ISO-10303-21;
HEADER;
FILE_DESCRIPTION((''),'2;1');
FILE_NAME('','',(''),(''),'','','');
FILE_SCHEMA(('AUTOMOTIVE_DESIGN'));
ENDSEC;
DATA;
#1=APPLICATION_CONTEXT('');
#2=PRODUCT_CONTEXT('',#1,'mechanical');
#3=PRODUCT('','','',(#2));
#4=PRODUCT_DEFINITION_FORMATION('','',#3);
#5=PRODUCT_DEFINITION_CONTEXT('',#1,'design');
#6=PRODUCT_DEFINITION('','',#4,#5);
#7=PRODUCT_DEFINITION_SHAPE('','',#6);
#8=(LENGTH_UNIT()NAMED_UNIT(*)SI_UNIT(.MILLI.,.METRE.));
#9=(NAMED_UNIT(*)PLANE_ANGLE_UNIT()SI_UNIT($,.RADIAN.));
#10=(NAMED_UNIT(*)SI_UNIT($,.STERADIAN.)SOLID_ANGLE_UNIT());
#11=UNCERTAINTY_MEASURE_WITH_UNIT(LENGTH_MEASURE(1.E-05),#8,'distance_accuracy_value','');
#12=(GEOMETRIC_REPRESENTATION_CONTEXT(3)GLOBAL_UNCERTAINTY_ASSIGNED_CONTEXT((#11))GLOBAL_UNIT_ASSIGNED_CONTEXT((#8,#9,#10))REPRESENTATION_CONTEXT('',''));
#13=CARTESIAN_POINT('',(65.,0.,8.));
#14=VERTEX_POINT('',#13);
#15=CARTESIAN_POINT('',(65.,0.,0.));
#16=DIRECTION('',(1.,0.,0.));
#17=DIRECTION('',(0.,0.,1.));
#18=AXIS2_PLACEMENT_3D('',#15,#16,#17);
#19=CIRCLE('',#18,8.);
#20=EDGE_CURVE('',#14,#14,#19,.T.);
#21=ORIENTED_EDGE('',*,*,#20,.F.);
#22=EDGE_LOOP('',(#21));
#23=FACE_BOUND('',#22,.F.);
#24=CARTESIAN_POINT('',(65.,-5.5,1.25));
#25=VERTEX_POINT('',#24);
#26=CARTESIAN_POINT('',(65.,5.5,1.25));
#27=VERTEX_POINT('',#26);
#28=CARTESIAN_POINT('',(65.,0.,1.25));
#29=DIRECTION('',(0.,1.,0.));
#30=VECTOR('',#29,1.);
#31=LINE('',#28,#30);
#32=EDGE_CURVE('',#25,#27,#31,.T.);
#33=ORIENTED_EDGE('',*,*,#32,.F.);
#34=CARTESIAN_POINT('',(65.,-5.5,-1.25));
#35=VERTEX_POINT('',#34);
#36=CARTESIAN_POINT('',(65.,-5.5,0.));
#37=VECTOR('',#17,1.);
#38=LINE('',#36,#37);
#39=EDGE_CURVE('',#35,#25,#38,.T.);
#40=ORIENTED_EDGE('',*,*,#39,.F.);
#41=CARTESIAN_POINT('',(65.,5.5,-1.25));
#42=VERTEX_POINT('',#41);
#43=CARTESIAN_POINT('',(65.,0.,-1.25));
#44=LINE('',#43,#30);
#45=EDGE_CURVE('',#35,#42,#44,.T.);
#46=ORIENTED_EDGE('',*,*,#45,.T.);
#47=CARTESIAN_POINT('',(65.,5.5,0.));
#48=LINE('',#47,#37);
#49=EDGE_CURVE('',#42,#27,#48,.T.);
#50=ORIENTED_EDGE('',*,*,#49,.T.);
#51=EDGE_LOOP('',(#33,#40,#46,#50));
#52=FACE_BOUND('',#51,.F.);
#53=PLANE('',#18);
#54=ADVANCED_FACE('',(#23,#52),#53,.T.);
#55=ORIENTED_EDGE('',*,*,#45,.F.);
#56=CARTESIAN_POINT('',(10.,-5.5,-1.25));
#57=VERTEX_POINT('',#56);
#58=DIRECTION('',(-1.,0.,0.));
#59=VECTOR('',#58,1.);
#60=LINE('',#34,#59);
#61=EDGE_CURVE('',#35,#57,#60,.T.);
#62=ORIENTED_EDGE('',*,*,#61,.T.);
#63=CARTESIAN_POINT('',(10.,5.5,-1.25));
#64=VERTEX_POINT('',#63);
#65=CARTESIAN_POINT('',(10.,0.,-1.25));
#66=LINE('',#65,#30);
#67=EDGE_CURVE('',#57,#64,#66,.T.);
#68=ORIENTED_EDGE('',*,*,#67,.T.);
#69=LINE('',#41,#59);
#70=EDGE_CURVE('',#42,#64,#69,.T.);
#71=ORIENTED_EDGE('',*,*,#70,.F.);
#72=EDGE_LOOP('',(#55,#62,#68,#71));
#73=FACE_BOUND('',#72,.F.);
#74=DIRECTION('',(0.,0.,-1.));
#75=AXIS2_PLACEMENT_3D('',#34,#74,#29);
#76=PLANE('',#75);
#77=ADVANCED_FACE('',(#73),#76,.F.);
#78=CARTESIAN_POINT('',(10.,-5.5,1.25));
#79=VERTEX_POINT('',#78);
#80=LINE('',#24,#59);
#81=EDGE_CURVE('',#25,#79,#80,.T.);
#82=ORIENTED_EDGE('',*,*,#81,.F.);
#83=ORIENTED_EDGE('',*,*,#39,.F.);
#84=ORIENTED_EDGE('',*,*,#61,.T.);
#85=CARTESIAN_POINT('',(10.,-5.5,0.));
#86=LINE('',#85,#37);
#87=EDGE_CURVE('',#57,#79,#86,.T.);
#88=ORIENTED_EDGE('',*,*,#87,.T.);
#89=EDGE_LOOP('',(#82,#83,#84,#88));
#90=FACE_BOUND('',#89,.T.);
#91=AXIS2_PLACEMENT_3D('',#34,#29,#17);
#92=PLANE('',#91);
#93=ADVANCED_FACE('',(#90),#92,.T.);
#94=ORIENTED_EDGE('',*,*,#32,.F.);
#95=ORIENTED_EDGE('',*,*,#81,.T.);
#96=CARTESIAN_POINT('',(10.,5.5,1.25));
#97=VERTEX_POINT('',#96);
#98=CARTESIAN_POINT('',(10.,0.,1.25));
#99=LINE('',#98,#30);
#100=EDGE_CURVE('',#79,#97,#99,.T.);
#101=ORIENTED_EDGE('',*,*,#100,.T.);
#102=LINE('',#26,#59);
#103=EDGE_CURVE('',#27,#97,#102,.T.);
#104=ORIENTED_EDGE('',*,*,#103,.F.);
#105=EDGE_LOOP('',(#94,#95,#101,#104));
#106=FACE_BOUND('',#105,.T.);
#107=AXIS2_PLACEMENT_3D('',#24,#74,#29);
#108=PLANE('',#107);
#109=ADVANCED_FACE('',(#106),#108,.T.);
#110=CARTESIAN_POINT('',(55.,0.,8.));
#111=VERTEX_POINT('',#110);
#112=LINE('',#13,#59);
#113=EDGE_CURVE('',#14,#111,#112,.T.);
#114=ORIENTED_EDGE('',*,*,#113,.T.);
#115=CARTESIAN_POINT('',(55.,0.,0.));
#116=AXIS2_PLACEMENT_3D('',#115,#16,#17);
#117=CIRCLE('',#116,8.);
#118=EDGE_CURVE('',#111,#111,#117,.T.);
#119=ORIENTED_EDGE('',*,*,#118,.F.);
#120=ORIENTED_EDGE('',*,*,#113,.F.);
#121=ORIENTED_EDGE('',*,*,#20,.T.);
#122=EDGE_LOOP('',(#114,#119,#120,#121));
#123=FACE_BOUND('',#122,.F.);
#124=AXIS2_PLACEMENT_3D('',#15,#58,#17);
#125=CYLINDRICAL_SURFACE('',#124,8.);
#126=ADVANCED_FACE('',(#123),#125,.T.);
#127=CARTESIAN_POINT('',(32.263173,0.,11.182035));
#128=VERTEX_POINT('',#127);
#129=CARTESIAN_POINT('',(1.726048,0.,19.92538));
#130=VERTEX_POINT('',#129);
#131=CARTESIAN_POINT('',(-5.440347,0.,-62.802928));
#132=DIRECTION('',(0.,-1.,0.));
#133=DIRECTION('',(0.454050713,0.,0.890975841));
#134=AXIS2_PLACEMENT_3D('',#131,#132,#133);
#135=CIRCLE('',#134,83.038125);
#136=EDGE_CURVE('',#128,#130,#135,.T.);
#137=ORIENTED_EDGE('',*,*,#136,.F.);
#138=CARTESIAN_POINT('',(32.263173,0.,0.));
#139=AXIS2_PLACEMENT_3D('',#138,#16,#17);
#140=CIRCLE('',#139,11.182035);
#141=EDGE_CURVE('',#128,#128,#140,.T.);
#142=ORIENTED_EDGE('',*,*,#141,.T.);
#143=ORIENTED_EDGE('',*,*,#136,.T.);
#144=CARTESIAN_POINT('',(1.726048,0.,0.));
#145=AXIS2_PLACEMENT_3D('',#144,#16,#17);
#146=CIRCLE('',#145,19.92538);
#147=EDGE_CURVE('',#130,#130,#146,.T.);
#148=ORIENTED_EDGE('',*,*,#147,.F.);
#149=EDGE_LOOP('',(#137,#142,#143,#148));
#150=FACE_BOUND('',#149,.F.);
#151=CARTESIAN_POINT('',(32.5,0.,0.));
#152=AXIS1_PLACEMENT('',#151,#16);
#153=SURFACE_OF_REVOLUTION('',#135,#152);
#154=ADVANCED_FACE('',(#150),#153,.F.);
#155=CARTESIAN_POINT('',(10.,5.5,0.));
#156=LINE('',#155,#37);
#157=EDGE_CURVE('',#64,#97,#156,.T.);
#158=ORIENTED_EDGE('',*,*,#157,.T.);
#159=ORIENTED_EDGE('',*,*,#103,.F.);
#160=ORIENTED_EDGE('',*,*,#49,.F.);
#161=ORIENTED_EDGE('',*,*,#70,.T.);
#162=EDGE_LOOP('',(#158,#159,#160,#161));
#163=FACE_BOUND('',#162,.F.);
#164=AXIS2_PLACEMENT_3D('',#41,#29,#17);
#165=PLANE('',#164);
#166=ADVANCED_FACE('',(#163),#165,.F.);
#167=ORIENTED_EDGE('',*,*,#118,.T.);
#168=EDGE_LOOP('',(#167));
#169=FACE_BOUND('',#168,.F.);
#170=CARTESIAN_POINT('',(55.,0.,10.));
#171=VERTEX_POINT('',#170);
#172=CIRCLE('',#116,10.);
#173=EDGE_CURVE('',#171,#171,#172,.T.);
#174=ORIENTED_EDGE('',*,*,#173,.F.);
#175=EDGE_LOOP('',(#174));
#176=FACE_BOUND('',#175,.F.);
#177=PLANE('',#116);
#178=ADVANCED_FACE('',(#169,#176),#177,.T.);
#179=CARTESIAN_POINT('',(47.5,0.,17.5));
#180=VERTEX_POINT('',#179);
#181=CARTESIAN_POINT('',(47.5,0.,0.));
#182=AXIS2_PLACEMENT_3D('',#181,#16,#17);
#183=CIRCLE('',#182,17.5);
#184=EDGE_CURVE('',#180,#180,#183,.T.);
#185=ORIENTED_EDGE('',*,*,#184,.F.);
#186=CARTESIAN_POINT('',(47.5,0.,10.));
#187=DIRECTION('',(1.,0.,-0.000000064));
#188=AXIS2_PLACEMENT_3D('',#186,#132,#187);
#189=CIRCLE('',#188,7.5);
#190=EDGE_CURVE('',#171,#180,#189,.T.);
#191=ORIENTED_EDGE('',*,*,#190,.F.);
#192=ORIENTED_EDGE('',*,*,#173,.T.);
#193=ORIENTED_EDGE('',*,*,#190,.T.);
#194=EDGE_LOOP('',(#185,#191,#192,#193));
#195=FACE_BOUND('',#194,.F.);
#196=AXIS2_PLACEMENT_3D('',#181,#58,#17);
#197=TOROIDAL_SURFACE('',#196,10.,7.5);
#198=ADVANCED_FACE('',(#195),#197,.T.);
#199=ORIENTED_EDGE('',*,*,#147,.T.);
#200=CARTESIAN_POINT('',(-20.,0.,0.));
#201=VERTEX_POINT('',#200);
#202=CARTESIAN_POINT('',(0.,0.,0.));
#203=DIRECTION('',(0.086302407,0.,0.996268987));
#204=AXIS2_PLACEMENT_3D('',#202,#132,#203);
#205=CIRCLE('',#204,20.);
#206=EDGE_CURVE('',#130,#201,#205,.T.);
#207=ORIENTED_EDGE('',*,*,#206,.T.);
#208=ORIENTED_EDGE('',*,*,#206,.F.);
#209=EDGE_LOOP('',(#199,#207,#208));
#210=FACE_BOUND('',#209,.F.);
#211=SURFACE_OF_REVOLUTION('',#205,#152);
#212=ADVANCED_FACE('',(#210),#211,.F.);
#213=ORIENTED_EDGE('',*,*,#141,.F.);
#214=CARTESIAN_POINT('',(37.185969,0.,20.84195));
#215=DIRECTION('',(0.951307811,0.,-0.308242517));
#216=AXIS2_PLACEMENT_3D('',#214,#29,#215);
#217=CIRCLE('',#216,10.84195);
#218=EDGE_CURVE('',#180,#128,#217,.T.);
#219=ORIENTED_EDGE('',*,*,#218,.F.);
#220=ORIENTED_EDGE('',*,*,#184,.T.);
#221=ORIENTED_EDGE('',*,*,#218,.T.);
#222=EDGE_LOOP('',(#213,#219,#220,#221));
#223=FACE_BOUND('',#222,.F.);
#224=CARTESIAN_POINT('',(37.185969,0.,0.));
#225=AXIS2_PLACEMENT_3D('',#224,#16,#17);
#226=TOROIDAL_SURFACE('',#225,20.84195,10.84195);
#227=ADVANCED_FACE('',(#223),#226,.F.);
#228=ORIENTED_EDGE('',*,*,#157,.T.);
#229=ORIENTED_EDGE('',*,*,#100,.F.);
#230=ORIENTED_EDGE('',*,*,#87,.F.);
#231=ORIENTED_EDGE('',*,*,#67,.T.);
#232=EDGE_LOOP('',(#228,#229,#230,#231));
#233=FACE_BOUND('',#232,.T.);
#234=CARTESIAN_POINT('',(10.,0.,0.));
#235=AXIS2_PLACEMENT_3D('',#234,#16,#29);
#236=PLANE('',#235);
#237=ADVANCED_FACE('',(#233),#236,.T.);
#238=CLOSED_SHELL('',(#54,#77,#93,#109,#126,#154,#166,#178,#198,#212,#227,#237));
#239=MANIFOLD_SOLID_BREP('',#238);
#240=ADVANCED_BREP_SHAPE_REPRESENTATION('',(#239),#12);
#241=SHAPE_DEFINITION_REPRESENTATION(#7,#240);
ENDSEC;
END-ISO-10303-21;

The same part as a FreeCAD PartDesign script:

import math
import FreeCAD as App
import Part
import Sketcher

V = App.Vector
Q = App.Units.Quantity


def add_polygon(sketch, points):
    """Adds a closed chain of lines whose ends are joined by coincident constraints."""
    first, n = sketch.GeometryCount, len(points)
    for a, b in zip(points, points[1:] + points[:1]):
        sketch.addGeometry(Part.LineSegment(App.Vector(*a, 0), App.Vector(*b, 0)), False)
    for i in range(n):
        sketch.addConstraint(Sketcher.Constraint("Coincident", first + i, 2, first + (i + 1) % n, 1))

doc = App.newDocument("Part")
body = doc.addObject("PartDesign::Body", "Body")

sketch1 = doc.addObject("Sketcher::SketchObject", "Sketch")
body.addObject(sketch1)
sketch1.AttachmentSupport = (doc.XZ_Plane, [""])
sketch1.MapMode = "FlatFace"
sketch1.addGeometry(Part.ArcOfCircle(Part.Circle(V(-5.4, -62.8, 0), V(0, 0, 1), 83), math.radians(63), math.radians(85)), False)
sketch1.addGeometry(Part.ArcOfCircle(Part.Circle(V(0, 0, 0), V(0, 0, 1), 20), math.radians(85), math.radians(180)), False)
sketch1.addGeometry(Part.LineSegment(V(-20, 0, 0), V(65, 0, 0)), False)
sketch1.addGeometry(Part.LineSegment(V(65, 0, 0), V(65, 8, 0)), False)
sketch1.addGeometry(Part.LineSegment(V(65, 8, 0), V(55, 8, 0)), False)
sketch1.addGeometry(Part.LineSegment(V(55, 8, 0), V(55, 10, 0)), False)
sketch1.addGeometry(Part.ArcOfCircle(Part.Circle(V(47.5, 10, 0), V(0, 0, 1), 7.5), math.radians(0), math.radians(90)), False)
sketch1.addGeometry(Part.ArcOfCircle(Part.Circle(V(37.2, 20.8, 0), V(0, 0, 1), 10.8), math.radians(-117), math.radians(-18)), False)
sketch1.addConstraint(Sketcher.Constraint("Tangent", 0, 2, 1, 1))
sketch1.addConstraint(Sketcher.Constraint("Coincident", 1, 2, 2, 1))
sketch1.addConstraint(Sketcher.Constraint("Coincident", 2, 2, 3, 1))
sketch1.addConstraint(Sketcher.Constraint("Coincident", 3, 2, 4, 1))
sketch1.addConstraint(Sketcher.Constraint("Coincident", 4, 2, 5, 1))
sketch1.addConstraint(Sketcher.Constraint("Tangent", 5, 2, 6, 1))
sketch1.addConstraint(Sketcher.Constraint("Coincident", 6, 2, 7, 2))
sketch1.addConstraint(Sketcher.Constraint("Tangent", 7, 1, 0, 1))
sketch1.addConstraint(Sketcher.Constraint("Horizontal", 2))
sketch1.addConstraint(Sketcher.Constraint("Vertical", 3))
sketch1.addConstraint(Sketcher.Constraint("Horizontal", 4))
sketch1.addConstraint(Sketcher.Constraint("Vertical", 5))
sketch1.addConstraint(Sketcher.Constraint("Coincident", 1, 3, -1, 1))
sketch1.addConstraint(Sketcher.Constraint("PointOnObject", 1, 2, -1))
sketch1.addConstraint(Sketcher.Constraint("Radius", 1, Q("20 mm")))
sketch1.addConstraint(Sketcher.Constraint("Radius", 6, Q("7.5 mm")))
sketch1.addConstraint(Sketcher.Constraint("DistanceX", 2, 1, 2, 2, Q("85 mm")))
sketch1.addConstraint(Sketcher.Constraint("DistanceX", 4, 2, 4, 1, Q("10 mm")))
sketch1.addConstraint(Sketcher.Constraint("DistanceY", 3, 1, 3, 2, Q("8 mm")))
sketch1.addConstraint(Sketcher.Constraint("DistanceY", 5, 1, 5, 2, Q("2 mm")))
sketch1.addConstraint(Sketcher.Constraint("DistanceX", -1, 1, 6, 2, Q("47.5 mm")))
sketch1.addConstraint(Sketcher.Constraint("Radius", 7, Q("10.84195 mm")))
sketch1.addConstraint(Sketcher.Constraint("Radius", 0, Q("83.038125 mm")))
sketch1.addConstraint(Sketcher.Constraint("DistanceY", 0, 3, -1, 1, Q("62.802928 mm")))
revolution = doc.addObject("PartDesign::Revolution", "Revolution")
body.addObject(revolution)
revolution.Profile = sketch1
revolution.ReferenceAxis = (sketch1, ["H_Axis"])
revolution.Angle = 360

sketch2 = doc.addObject("Sketcher::SketchObject", "Sketch001")
body.addObject(sketch2)
sketch2.AttachmentSupport = (doc.YZ_Plane, [""])
sketch2.MapMode = "FlatFace"
sketch2.AttachmentOffset = App.Placement(V(0, 0, 65), App.Rotation())
add_polygon(sketch2, [(-5.5, 1.2), (-5.5, -1.2), (5.5, -1.2), (5.5, 1.2)])
sketch2.addConstraint(Sketcher.Constraint("Vertical", 0))
sketch2.addConstraint(Sketcher.Constraint("Horizontal", 1))
sketch2.addConstraint(Sketcher.Constraint("Vertical", 2))
sketch2.addConstraint(Sketcher.Constraint("Horizontal", 3))
sketch2.addConstraint(Sketcher.Constraint("Symmetric", 0, 2, 2, 2, -1, 1))
sketch2.addConstraint(Sketcher.Constraint("DistanceX", 1, 1, 1, 2, Q("11 mm")))
sketch2.addConstraint(Sketcher.Constraint("DistanceY", 0, 2, 0, 1, Q("2.5 mm")))
pocket1 = doc.addObject("PartDesign::Pocket", "Pocket")
body.addObject(pocket1)
pocket1.Profile = sketch2
pocket1.Length = 55

doc.recompute()
